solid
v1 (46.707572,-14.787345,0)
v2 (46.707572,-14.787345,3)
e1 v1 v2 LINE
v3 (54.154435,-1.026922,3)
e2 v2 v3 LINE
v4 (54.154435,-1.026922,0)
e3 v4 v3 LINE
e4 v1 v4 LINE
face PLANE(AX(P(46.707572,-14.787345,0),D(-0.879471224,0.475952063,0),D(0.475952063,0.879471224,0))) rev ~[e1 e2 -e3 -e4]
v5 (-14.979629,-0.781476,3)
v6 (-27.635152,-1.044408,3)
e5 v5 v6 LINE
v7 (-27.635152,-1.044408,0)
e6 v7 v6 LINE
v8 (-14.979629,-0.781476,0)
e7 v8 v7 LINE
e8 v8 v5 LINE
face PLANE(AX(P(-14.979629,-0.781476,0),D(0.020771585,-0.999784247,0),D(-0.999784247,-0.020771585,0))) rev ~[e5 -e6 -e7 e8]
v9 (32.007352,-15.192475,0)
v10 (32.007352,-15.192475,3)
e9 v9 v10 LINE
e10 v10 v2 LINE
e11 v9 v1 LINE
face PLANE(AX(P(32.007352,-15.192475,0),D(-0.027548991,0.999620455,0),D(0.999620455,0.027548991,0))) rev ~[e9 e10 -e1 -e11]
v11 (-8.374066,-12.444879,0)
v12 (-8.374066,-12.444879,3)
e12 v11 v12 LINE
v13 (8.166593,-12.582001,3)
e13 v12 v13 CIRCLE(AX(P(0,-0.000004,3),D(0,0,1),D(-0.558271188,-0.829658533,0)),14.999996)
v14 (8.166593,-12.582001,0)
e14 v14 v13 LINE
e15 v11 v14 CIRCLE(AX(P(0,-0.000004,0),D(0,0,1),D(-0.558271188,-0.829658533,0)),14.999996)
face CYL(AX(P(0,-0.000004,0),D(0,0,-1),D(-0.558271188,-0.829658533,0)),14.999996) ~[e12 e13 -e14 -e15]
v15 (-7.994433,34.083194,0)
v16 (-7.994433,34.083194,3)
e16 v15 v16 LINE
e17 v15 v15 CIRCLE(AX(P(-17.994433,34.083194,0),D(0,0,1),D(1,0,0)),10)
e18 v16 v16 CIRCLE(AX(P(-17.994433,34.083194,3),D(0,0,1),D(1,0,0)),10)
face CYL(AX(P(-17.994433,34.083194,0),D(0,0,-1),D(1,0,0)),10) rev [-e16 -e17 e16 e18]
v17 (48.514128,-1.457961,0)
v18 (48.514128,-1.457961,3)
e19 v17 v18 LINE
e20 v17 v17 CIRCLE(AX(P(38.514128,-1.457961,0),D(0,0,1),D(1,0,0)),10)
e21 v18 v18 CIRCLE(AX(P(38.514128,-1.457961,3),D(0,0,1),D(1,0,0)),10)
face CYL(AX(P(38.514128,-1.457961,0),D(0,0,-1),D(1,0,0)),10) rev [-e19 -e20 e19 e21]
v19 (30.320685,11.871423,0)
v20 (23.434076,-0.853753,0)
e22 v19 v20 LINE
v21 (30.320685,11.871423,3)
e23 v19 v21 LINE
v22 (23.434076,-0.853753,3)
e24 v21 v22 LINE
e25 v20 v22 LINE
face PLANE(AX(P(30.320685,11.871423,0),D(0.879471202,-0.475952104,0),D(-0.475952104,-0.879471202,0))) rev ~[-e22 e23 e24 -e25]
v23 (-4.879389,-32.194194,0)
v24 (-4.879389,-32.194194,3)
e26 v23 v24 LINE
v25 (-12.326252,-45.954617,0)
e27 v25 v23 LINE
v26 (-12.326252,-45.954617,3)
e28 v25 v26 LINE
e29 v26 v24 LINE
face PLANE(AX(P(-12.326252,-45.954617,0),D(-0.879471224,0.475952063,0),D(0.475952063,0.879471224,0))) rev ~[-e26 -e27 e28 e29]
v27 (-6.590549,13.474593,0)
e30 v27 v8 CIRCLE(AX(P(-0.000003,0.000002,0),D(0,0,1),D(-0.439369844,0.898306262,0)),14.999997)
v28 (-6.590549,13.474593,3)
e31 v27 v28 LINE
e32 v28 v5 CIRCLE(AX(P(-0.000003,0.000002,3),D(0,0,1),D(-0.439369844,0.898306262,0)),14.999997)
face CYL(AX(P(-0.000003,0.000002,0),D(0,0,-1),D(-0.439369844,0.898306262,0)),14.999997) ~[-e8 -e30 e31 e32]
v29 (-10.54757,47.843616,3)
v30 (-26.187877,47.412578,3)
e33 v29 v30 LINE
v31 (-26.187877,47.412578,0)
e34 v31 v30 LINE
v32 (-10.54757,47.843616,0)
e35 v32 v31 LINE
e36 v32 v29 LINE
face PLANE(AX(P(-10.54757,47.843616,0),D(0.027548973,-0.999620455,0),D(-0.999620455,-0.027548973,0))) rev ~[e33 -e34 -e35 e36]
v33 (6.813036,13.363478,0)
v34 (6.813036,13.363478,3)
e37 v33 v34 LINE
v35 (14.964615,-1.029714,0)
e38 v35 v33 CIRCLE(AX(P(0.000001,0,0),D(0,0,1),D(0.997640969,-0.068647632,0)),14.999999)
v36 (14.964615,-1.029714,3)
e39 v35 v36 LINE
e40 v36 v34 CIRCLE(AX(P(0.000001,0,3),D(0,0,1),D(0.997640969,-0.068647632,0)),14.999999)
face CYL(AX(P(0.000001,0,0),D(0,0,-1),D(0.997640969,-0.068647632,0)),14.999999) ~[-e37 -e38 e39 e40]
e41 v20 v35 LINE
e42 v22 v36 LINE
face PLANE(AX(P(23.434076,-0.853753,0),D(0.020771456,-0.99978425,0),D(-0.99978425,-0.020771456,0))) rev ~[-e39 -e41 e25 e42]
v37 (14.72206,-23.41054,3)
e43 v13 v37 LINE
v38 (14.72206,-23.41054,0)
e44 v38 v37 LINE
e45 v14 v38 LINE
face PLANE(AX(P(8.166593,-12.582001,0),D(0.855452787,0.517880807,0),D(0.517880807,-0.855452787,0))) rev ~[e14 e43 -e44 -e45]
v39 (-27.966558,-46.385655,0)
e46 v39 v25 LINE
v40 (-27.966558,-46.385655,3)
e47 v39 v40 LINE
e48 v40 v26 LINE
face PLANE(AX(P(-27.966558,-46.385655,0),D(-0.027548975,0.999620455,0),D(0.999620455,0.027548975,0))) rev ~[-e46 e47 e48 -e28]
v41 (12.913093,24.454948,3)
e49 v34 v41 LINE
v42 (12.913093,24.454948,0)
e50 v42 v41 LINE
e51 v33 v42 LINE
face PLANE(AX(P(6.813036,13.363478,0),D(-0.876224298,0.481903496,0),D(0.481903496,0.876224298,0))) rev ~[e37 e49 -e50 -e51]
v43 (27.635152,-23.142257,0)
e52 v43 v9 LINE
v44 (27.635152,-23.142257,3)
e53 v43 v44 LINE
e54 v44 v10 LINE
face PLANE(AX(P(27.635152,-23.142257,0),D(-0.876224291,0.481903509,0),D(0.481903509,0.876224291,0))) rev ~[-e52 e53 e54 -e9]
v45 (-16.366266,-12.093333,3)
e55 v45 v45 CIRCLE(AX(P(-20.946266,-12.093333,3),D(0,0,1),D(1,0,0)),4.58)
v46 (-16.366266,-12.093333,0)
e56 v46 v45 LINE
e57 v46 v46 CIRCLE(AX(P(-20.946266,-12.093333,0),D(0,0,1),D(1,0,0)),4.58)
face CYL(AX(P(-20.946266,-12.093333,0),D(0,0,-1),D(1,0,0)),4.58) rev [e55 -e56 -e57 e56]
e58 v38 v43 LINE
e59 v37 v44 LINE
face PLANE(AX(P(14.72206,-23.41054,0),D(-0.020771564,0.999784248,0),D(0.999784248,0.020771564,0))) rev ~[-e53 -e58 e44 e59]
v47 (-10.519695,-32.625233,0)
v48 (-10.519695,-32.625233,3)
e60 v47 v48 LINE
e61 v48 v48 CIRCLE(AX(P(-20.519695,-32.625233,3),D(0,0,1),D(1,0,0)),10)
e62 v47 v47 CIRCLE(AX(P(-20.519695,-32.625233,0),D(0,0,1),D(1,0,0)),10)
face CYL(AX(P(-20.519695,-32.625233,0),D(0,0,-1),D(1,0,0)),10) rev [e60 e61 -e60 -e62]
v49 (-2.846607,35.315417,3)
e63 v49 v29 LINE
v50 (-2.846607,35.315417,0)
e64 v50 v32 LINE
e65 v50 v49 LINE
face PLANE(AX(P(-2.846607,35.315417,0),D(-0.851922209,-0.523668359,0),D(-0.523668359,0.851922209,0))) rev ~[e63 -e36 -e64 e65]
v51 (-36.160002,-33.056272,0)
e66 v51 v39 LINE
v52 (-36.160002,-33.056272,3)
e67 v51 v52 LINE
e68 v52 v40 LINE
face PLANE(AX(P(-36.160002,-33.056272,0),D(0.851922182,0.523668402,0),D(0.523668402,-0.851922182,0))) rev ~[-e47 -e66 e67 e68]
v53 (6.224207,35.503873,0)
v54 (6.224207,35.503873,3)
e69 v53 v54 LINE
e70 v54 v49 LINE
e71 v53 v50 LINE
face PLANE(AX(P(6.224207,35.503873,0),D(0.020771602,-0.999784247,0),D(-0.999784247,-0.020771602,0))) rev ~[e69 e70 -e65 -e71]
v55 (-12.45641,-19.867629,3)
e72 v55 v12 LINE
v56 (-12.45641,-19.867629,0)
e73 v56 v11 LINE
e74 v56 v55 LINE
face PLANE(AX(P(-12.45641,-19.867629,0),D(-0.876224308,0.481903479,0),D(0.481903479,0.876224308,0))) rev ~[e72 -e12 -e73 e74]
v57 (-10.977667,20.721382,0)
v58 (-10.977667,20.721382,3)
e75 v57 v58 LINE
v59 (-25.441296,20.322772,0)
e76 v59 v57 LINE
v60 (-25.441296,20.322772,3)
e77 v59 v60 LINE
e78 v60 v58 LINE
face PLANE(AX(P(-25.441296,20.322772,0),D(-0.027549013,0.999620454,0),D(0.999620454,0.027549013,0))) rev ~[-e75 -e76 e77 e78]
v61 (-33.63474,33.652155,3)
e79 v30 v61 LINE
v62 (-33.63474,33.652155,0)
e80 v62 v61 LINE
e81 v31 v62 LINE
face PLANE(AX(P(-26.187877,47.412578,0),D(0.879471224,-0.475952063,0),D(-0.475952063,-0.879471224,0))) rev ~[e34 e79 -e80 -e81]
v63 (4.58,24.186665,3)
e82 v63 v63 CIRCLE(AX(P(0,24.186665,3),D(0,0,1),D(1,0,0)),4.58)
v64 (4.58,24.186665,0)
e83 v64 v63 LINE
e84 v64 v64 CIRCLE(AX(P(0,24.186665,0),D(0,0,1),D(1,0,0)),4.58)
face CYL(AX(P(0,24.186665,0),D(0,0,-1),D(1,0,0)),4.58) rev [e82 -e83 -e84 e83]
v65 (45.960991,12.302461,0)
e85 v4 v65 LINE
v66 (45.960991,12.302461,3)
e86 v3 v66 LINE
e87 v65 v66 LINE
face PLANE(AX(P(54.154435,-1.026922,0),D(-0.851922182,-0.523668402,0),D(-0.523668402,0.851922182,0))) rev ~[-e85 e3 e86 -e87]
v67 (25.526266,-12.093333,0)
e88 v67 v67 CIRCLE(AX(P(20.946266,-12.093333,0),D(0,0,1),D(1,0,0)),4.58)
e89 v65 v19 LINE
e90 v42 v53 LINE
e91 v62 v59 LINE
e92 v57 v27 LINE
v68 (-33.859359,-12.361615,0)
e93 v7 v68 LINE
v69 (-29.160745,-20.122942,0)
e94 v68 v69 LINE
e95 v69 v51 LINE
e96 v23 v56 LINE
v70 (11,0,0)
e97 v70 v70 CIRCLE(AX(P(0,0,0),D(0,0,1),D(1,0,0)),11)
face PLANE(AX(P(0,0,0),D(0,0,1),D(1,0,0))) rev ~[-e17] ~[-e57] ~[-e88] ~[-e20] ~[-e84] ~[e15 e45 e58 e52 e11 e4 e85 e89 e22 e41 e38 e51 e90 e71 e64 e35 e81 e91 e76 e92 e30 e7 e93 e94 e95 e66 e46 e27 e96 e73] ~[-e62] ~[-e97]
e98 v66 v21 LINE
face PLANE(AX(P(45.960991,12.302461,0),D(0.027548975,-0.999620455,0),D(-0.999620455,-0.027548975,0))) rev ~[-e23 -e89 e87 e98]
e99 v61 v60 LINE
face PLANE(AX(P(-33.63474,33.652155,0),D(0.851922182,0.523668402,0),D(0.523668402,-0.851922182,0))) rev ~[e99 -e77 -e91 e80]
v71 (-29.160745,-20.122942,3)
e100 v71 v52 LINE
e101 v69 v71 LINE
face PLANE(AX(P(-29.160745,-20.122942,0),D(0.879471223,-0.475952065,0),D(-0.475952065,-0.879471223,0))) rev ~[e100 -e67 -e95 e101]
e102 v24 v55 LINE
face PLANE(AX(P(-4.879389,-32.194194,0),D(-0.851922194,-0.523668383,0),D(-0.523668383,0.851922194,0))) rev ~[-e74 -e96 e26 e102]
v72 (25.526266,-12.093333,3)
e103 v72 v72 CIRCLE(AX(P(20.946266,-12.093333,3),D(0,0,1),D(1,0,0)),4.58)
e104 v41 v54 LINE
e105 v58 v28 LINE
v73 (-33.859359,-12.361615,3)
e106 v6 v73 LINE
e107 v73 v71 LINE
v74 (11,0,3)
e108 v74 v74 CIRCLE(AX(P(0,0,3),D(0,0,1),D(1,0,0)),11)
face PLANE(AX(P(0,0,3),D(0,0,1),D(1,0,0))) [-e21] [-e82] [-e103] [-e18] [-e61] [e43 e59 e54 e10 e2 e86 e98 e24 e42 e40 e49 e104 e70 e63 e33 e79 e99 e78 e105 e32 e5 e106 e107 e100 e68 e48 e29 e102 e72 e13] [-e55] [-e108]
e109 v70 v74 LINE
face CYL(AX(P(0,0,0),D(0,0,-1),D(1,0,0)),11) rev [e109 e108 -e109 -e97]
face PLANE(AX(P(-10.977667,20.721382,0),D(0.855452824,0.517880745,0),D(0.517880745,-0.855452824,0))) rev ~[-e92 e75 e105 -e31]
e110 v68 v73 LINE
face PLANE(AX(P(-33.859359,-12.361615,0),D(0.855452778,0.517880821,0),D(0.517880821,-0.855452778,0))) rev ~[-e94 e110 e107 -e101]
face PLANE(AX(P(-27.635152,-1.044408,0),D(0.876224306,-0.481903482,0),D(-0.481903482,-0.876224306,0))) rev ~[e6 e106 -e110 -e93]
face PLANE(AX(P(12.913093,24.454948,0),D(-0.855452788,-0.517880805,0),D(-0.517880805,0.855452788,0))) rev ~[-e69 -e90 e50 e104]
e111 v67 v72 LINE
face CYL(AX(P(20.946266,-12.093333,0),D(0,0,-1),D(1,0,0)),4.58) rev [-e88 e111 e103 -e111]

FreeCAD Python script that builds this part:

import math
import FreeCAD as App
import Part
import Sketcher

V = App.Vector

doc = App.newDocument("Part")
params = doc.addObject("Spreadsheet::Sheet", "Params")
for row, (alias, value) in enumerate([
    ("sketch1_diameter", "20 mm"),
    ("sketch1_diameter2", "22 mm"),
    ("sketch1_radius", "14.999999 mm"),
    ("sketch1_diameter3", "9.16 mm"),
    ("pad1_length", "3 mm"),
], start=1):
    params.set(f"A{row}", alias)
    params.set(f"B{row}", "=" + value)
    params.setAlias(f"B{row}", alias)

body = doc.addObject("PartDesign::Body", "Body")

sketch1 = body.newObject("Sketcher::SketchObject", "Sketch")
sketch1.AttachmentSupport = (doc.getObject("XY_Plane"), [""])
sketch1.MapMode = "FlatFace"
sketch1.addGeometry([
    Part.LineSegment(V(-11, 20.7, 0), V(-6.6, 13.5, 0)),
    Part.ArcOfCircle(Part.Circle(V(0, 0, 0), V(0, 0, 1), 15), math.radians(116), math.radians(183)),
    Part.LineSegment(V(-15, -0.8, 0), V(-27.6, -1, 0)),
    Part.LineSegment(V(-27.6, -1, 0), V(-33.9, -12.4, 0)),
    Part.LineSegment(V(-33.9, -12.4, 0), V(-29.2, -20.1, 0)),
    Part.LineSegment(V(-29.2, -20.1, 0), V(-36.2, -33.1, 0)),
    Part.LineSegment(V(-36.2, -33.1, 0), V(-28, -46.4, 0)),
    Part.LineSegment(V(-28, -46.4, 0), V(-12.3, -46, 0)),
    Part.LineSegment(V(-12.3, -46, 0), V(-4.9, -32.2, 0)),
    Part.LineSegment(V(-4.9, -32.2, 0), V(-12.5, -19.9, 0)),
    Part.LineSegment(V(-12.5, -19.9, 0), V(-8.4, -12.4, 0)),
    Part.ArcOfCircle(Part.Circle(V(0, 0, 0), V(0, 0, 1), 15), math.radians(-124), math.radians(-57)),
    Part.LineSegment(V(8.2, -12.6, 0), V(14.7, -23.4, 0)),
    Part.LineSegment(V(14.7, -23.4, 0), V(27.6, -23.1, 0)),
    Part.LineSegment(V(27.6, -23.1, 0), V(32, -15.2, 0)),
    Part.LineSegment(V(32, -15.2, 0), V(46.7, -14.8, 0)),
    Part.LineSegment(V(46.7, -14.8, 0), V(54.2, -1, 0)),
    Part.LineSegment(V(54.2, -1, 0), V(46, 12.3, 0)),
    Part.LineSegment(V(46, 12.3, 0), V(30.3, 11.9, 0)),
    Part.LineSegment(V(30.3, 11.9, 0), V(23.4, -0.9, 0)),
    Part.LineSegment(V(23.4, -0.9, 0), V(15, -1, 0)),
    Part.ArcOfCircle(Part.Circle(V(0, 0, 0), V(0, 0, 1), 15), math.radians(-4), math.radians(63)),
    Part.LineSegment(V(6.8, 13.4, 0), V(12.9, 24.5, 0)),
    Part.LineSegment(V(12.9, 24.5, 0), V(6.2, 35.5, 0)),
    Part.LineSegment(V(6.2, 35.5, 0), V(-2.8, 35.3, 0)),
    Part.LineSegment(V(-2.8, 35.3, 0), V(-10.5, 47.8, 0)),
    Part.LineSegment(V(-10.5, 47.8, 0), V(-26.2, 47.4, 0)),
    Part.LineSegment(V(-26.2, 47.4, 0), V(-33.6, 33.7, 0)),
    Part.LineSegment(V(-33.6, 33.7, 0), V(-25.4, 20.3, 0)),
    Part.LineSegment(V(-25.4, 20.3, 0), V(-11, 20.7, 0)),
    Part.Circle(V(-20.5, -32.6, 0), V(0, 0, 1), 10),
    Part.Circle(V(-20.9, -12.1, 0), V(0, 0, 1), 4.6),
    Part.Circle(V(0, 0, 0), V(0, 0, 1), 11),
    Part.Circle(V(20.9, -12.1, 0), V(0, 0, 1), 4.6),
    Part.Circle(V(38.5, -1.5, 0), V(0, 0, 1), 10),
    Part.Circle(V(-18, 34.1, 0), V(0, 0, 1), 10),
    Part.Circle(V(0, 24.2, 0), V(0, 0, 1), 4.6),
], False)
sketch1.addConstraint([
    Sketcher.Constraint("Coincident", 0, 2, 1, 1),
    Sketcher.Constraint("Coincident", 1, 2, 2, 1),
    Sketcher.Constraint("Coincident", 2, 2, 3, 1),
    Sketcher.Constraint("Coincident", 3, 2, 4, 1),
    Sketcher.Constraint("Coincident", 4, 2, 5, 1),
    Sketcher.Constraint("Coincident", 5, 2, 6, 1),
    Sketcher.Constraint("Coincident", 6, 2, 7, 1),
    Sketcher.Constraint("Coincident", 7, 2, 8, 1),
    Sketcher.Constraint("Coincident", 8, 2, 9, 1),
    Sketcher.Constraint("Coincident", 9, 2, 10, 1),
    Sketcher.Constraint("Coincident", 10, 2, 11, 1),
    Sketcher.Constraint("Coincident", 11, 2, 12, 1),
    Sketcher.Constraint("Coincident", 12, 2, 13, 1),
    Sketcher.Constraint("Coincident", 13, 2, 14, 1),
    Sketcher.Constraint("Coincident", 14, 2, 15, 1),
    Sketcher.Constraint("Coincident", 15, 2, 16, 1),
    Sketcher.Constraint("Coincident", 16, 2, 17, 1),
    Sketcher.Constraint("Coincident", 17, 2, 18, 1),
    Sketcher.Constraint("Coincident", 18, 2, 19, 1),
    Sketcher.Constraint("Coincident", 19, 2, 20, 1),
    Sketcher.Constraint("Coincident", 20, 2, 21, 1),
    Sketcher.Constraint("Coincident", 21, 2, 22, 1),
    Sketcher.Constraint("Coincident", 22, 2, 23, 1),
    Sketcher.Constraint("Coincident", 23, 2, 24, 1),
    Sketcher.Constraint("Coincident", 24, 2, 25, 1),
    Sketcher.Constraint("Coincident", 25, 2, 26, 1),
    Sketcher.Constraint("Coincident", 26, 2, 27, 1),
    Sketcher.Constraint("Coincident", 27, 2, 28, 1),
    Sketcher.Constraint("Coincident", 28, 2, 29, 1),
    Sketcher.Constraint("Coincident", 29, 2, 0, 1),
    Sketcher.Constraint("Coincident", 1, 3, -1, 1),
    Sketcher.Constraint("Coincident", 11, 3, -1, 1),
    Sketcher.Constraint("Coincident", 21, 3, -1, 1),
    Sketcher.Constraint("Coincident", 32, 3, -1, 1),
    Sketcher.Constraint("Equal", 1, 11),
    Sketcher.Constraint("Equal", 1, 21),
    Sketcher.Constraint("Equal", 31, 33),
    Sketcher.Constraint("Equal", 30, 34),
    Sketcher.Constraint("Equal", 34, 35),
    Sketcher.Constraint("Equal", 33, 36),
    Sketcher.Constraint("Symmetric", 31, 3, 33, 3, -2),
    Sketcher.Constraint("PointOnObject", 36, 3, -2),
    Sketcher.Constraint("Parallel", 0, 4),
    Sketcher.Constraint("Parallel", 5, 8),
    Sketcher.Constraint("Parallel", 6, 9),
    Sketcher.Constraint("Parallel", 3, 10),
    Sketcher.Constraint("Parallel", 4, 12),
    Sketcher.Constraint("Parallel", 2, 13),
    Sketcher.Constraint("Parallel", 10, 14),
    Sketcher.Constraint("Parallel", 7, 15),
    Sketcher.Constraint("Parallel", 8, 16),
    Sketcher.Constraint("Parallel", 9, 17),
    Sketcher.Constraint("Parallel", 15, 18),
    Sketcher.Constraint("Parallel", 16, 19),
    Sketcher.Constraint("Parallel", 13, 20),
    Sketcher.Constraint("Parallel", 14, 22),
    Sketcher.Constraint("Parallel", 12, 23),
    Sketcher.Constraint("Parallel", 20, 24),
    Sketcher.Constraint("Parallel", 17, 25),
    Sketcher.Constraint("Parallel", 18, 26),
    Sketcher.Constraint("Parallel", 19, 27),
    Sketcher.Constraint("Parallel", 25, 28),
    Sketcher.Constraint("Parallel", 26, 29),
    Sketcher.Constraint("Equal", 6, 7),
    Sketcher.Constraint("Equal", 7, 8),
    Sketcher.Constraint("Equal", 0, 10),
    Sketcher.Constraint("Equal", 2, 12),
    Sketcher.Constraint("Equal", 3, 13),
    Sketcher.Constraint("Equal", 4, 14),
    Sketcher.Constraint("Equal", 5, 15),
    Sketcher.Constraint("Equal", 8, 16),
    Sketcher.Constraint("Equal", 16, 17),
    Sketcher.Constraint("Equal", 17, 18),
    Sketcher.Constraint("Equal", 9, 19),
    Sketcher.Constraint("Equal", 10, 20),
    Sketcher.Constraint("Equal", 12, 22),
    Sketcher.Constraint("Equal", 13, 23),
    Sketcher.Constraint("Equal", 14, 24),
    Sketcher.Constraint("Equal", 15, 25),
    Sketcher.Constraint("Equal", 18, 26),
    Sketcher.Constraint("Equal", 26, 27),
    Sketcher.Constraint("Equal", 27, 28),
    Sketcher.Constraint("Equal", 19, 29),
    Sketcher.Constraint("Diameter", 30, 20.0),
    Sketcher.Constraint("Diameter", 32, 22.0),
    Sketcher.Constraint("Radius", 21, 14.999999),
    Sketcher.Constraint("Diameter", 31, 9.16),
    Sketcher.Constraint("DistanceY", 11, 2, -1, 1, 12.582001),
    Sketcher.Constraint("DistanceY", 2, 2, 0, 2, 14.519001),
    Sketcher.Constraint("Distance", 15, 14.705802),
    Sketcher.Constraint("DistanceY", 30, 3, 31, 3, 20.5319),
    Sketcher.Constraint("DistanceX", 3, 2, 6, 2, 5.892801),
    Sketcher.Constraint("DistanceX", 31, 3, 10, 2, 12.5722),
    Sketcher.Constraint("DistanceX", 13, 2, 14, 2, 4.3722),
    Sketcher.Constraint("DistanceY", 14, 2, 18, 2, 27.063898),
    Sketcher.Constraint("DistanceX", 24, 2, 22, 2, 15.7597),
    Sketcher.Constraint("DistanceY", 24, 2, 25, 2, 12.528199),
    Sketcher.Constraint("Distance", 0, 8.47129),
    Sketcher.Constraint("Distance", 3, 12.915879),
    Sketcher.Constraint("Distance", 4, 9.072771),
    Sketcher.Constraint("Distance", 9, 14.469121),
    Sketcher.Constraint("DistanceY", 34, 3, -1, 1, 1.457961),
    Sketcher.Constraint("DistanceX", 0, 2, -1, 1, 6.590549),
    Sketcher.Constraint("DistanceY", 30, 3, 11, 3, 32.625229),
    Sketcher.Constraint("DistanceX", 31, 3, 30, 3, 0.426571),
    Sketcher.Constraint("DistanceX", 33, 3, 34, 3, 17.567862),
    Sketcher.Constraint("DistanceX", 35, 3, 1, 3, 17.99443),
    Sketcher.Constraint("DistanceY", 36, 3, 35, 3, 9.896529),
    Sketcher.Constraint("DistanceY", 11, 3, 36, 3, 24.186669),
])
sketch1.setExpression("Constraints[83]", "Params.sketch1_diameter")
sketch1.setExpression("Constraints[84]", "Params.sketch1_diameter2")
sketch1.setExpression("Constraints[85]", "Params.sketch1_radius")
sketch1.setExpression("Constraints[86]", "Params.sketch1_diameter3")
pad1 = body.newObject("PartDesign::Pad", "Pad")
pad1.Profile = sketch1
pad1.setExpression("Length", "Params.pad1_length")

doc.recompute()
